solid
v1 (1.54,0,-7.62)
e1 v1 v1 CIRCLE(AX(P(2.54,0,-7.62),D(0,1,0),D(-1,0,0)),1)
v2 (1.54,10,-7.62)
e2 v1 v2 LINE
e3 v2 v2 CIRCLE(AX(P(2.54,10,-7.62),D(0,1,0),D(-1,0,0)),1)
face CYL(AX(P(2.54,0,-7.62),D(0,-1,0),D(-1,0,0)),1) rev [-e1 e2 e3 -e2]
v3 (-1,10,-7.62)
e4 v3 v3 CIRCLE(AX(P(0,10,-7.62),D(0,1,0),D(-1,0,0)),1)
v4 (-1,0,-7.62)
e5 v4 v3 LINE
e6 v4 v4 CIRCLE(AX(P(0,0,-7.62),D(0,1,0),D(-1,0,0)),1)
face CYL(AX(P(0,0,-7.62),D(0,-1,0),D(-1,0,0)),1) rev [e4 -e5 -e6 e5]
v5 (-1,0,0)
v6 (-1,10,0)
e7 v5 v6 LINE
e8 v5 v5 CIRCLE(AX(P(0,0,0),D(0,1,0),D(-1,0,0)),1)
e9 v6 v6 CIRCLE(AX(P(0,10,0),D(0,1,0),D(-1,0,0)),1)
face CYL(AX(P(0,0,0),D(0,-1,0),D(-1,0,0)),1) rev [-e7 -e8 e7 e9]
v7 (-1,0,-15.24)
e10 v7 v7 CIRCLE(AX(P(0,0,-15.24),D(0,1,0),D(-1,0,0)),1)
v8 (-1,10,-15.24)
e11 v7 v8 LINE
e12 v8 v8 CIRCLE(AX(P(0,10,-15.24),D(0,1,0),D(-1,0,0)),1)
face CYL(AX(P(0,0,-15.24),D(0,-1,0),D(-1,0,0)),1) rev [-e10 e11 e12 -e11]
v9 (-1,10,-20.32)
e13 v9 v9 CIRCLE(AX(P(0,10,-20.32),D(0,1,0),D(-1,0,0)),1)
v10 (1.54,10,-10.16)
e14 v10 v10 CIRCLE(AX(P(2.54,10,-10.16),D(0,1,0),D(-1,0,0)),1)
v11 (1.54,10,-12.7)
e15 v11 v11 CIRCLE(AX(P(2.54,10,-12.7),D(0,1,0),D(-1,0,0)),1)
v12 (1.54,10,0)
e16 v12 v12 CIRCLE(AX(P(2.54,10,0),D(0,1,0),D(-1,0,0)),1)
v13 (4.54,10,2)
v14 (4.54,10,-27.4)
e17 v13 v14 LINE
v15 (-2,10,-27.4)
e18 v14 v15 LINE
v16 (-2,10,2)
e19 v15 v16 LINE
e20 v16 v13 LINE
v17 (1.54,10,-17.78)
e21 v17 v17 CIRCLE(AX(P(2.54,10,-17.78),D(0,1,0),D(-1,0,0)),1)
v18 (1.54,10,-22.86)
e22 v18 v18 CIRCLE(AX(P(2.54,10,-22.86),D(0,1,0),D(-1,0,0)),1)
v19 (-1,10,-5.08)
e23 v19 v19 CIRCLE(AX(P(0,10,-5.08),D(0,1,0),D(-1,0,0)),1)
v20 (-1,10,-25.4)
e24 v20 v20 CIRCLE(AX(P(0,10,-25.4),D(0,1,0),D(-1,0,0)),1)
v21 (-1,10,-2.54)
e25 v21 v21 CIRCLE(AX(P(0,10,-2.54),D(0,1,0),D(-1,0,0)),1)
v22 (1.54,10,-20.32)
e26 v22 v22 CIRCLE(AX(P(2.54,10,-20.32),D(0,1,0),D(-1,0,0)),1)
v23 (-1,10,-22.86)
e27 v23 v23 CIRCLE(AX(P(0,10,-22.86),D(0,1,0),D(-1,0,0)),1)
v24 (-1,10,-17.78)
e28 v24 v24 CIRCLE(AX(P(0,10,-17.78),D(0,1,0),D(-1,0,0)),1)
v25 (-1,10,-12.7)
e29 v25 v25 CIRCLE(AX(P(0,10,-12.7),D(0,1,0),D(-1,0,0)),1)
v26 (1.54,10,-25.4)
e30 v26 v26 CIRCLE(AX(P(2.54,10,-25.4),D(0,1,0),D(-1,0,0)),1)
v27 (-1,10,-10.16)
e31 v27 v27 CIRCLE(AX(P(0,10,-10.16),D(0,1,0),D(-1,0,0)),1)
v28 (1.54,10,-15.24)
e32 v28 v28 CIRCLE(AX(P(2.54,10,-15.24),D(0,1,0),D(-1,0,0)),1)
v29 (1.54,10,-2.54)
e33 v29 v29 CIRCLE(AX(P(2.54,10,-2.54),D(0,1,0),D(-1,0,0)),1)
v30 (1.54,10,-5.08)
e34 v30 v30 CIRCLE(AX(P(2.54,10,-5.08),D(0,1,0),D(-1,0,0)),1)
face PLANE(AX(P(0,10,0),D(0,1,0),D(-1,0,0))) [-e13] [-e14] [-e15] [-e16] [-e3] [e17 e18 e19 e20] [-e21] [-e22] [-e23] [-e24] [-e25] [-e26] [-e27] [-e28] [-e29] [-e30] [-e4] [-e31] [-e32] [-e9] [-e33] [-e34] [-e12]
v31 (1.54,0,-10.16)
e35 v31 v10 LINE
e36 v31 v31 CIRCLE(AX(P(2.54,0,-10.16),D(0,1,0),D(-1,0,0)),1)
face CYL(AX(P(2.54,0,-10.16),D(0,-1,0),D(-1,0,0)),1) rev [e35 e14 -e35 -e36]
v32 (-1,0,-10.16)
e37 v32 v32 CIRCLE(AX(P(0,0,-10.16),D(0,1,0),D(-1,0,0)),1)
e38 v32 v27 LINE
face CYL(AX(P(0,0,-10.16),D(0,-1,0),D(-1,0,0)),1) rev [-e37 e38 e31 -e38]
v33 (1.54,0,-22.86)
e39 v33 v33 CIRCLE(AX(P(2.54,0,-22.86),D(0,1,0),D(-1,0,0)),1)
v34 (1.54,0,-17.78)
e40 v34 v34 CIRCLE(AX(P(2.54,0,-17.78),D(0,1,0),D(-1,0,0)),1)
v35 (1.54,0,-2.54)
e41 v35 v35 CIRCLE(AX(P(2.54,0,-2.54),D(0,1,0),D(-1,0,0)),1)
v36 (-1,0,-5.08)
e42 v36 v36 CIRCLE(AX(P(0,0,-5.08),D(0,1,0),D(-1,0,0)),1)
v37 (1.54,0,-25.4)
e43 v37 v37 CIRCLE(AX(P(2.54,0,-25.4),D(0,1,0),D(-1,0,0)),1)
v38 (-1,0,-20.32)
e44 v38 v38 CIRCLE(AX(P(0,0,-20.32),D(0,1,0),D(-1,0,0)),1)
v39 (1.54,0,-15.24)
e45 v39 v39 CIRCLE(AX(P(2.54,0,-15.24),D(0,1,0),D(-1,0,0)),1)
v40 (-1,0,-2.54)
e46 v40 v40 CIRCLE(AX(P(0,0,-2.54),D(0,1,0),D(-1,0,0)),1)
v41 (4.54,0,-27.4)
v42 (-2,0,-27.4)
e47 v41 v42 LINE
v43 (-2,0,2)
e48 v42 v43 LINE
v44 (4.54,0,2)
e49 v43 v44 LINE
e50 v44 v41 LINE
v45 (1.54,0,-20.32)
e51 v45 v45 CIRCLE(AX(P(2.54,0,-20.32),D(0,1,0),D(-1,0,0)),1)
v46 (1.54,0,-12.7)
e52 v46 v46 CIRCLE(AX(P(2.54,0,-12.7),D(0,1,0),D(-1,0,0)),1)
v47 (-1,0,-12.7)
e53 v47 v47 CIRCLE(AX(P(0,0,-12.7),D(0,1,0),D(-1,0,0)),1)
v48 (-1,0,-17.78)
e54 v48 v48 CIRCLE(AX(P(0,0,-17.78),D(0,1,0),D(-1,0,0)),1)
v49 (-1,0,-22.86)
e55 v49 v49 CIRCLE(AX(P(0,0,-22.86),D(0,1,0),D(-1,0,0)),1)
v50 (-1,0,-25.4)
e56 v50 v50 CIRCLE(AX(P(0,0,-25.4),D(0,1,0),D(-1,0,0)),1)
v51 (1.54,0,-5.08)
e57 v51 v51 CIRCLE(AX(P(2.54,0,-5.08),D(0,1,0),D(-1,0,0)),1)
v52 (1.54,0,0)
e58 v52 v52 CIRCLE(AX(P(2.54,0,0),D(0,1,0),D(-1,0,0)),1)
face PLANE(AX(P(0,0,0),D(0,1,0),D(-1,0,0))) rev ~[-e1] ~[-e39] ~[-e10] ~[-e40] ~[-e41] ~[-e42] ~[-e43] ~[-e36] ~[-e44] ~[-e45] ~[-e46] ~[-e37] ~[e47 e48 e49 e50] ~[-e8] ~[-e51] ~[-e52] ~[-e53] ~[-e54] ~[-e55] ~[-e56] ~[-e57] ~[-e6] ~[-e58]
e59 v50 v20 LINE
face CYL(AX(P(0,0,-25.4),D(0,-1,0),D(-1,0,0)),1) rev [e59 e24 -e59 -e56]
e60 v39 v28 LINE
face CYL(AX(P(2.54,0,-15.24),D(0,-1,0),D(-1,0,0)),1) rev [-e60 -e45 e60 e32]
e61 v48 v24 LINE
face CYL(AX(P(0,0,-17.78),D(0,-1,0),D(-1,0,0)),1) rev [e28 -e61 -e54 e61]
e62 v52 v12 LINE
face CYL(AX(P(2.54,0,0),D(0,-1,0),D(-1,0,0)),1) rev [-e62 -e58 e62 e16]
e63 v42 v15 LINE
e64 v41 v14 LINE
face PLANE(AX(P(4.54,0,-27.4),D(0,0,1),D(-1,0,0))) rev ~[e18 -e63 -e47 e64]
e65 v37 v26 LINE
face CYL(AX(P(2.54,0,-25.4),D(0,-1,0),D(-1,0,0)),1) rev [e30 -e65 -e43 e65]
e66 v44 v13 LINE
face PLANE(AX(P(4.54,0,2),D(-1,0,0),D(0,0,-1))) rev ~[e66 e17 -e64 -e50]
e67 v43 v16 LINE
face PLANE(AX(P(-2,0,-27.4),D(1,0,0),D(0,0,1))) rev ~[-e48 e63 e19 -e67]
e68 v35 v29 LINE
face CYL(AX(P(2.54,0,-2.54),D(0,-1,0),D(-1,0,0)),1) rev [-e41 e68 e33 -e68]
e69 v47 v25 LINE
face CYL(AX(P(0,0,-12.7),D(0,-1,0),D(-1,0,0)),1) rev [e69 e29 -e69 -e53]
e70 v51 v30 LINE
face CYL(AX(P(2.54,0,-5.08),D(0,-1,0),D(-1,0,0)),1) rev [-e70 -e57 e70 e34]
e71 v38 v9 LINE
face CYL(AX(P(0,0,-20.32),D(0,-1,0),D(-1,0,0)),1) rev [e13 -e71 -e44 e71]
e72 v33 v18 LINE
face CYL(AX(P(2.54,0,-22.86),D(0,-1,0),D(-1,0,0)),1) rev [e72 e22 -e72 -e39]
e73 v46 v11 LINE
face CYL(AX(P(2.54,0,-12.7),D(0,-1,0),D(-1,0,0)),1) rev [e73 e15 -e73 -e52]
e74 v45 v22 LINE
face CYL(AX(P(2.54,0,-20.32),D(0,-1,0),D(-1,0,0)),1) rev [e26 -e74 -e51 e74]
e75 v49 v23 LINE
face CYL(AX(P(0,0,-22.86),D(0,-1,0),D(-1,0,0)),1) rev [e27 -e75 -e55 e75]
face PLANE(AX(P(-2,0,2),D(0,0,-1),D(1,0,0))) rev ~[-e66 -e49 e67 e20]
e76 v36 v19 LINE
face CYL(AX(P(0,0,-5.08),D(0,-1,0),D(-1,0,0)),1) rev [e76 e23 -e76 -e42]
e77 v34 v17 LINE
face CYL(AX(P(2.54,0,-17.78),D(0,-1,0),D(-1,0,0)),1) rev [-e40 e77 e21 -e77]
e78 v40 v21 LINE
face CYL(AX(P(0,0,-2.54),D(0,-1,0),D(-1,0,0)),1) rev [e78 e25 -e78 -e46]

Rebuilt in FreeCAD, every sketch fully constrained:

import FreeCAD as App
import Part
import Sketcher

V = App.Vector
Q = App.Units.Quantity

doc = App.newDocument("Part")
body = doc.addObject("PartDesign::Body", "Body")

# Sketch on XZ plane
sketch1 = body.newObject("Sketcher::SketchObject", "Sketch")
sketch1.AttachmentSupport = (doc.getObject("XZ_Plane"), [""])
sketch1.MapMode = "FlatFace"
sketch1.addGeometry([
    Part.LineSegment(V(-2, -27.4, 0), V(-2, 2, 0)),  # 0
    Part.LineSegment(V(-2, 2, 0), V(4.54, 2, 0)),  # 1
    Part.LineSegment(V(4.54, 2, 0), V(4.54, -27.4, 0)),  # 2
    Part.LineSegment(V(4.54, -27.4, 0), V(-2, -27.4, 0)),  # 3
    Part.Circle(V(2.54, -25.4, 0), V(0, 0, 1), 1),  # 4
    Part.Circle(V(2.54, -22.86, 0), V(0, 0, 1), 1),  # 5
    Part.Circle(V(2.54, -20.32, 0), V(0, 0, 1), 1),  # 6
    Part.Circle(V(2.54, -17.78, 0), V(0, 0, 1), 1),  # 7
    Part.Circle(V(2.54, -15.24, 0), V(0, 0, 1), 1),  # 8
    Part.Circle(V(0, -25.4, 0), V(0, 0, 1), 1),  # 9
    Part.Circle(V(0, -22.86, 0), V(0, 0, 1), 1),  # 10
    Part.Circle(V(0, -20.32, 0), V(0, 0, 1), 1),  # 11
    Part.Circle(V(0, -17.78, 0), V(0, 0, 1), 1),  # 12
    Part.Circle(V(0, -15.24, 0), V(0, 0, 1), 1),  # 13
    Part.Circle(V(2.54, -12.7, 0), V(0, 0, 1), 1),  # 14
    Part.Circle(V(2.54, -10.16, 0), V(0, 0, 1), 1),  # 15
    Part.Circle(V(2.54, -7.62, 0), V(0, 0, 1), 1),  # 16
    Part.Circle(V(2.54, -5.08, 0), V(0, 0, 1), 1),  # 17
    Part.Circle(V(2.54, -2.54, 0), V(0, 0, 1), 1),  # 18
    Part.Circle(V(2.54, 0, 0), V(0, 0, 1), 1),  # 19
    Part.Circle(V(0, -12.7, 0), V(0, 0, 1), 1),  # 20
    Part.Circle(V(0, -10.16, 0), V(0, 0, 1), 1),  # 21
    Part.Circle(V(0, -7.62, 0), V(0, 0, 1), 1),  # 22
    Part.Circle(V(0, -5.08, 0), V(0, 0, 1), 1),  # 23
    Part.Circle(V(0, -2.54, 0), V(0, 0, 1), 1),  # 24
    Part.Circle(V(0, 0, 0), V(0, 0, 1), 1),  # 25
], False)
sketch1.addConstraint([
    Sketcher.Constraint("Coincident", 0, 2, 1, 1),
    Sketcher.Constraint("Coincident", 1, 2, 2, 1),
    Sketcher.Constraint("Coincident", 2, 2, 3, 1),
    Sketcher.Constraint("Coincident", 3, 2, 0, 1),
    Sketcher.Constraint("Vertical", 0),
    Sketcher.Constraint("Horizontal", 1),
    Sketcher.Constraint("Vertical", 2),
    Sketcher.Constraint("Horizontal", 3),
    Sketcher.Constraint("Coincident", 25, 3, -1, 1),
    Sketcher.Constraint("Equal", 4, 5),
    Sketcher.Constraint("Equal", 5, 6),
    Sketcher.Constraint("Equal", 6, 7),
    Sketcher.Constraint("Equal", 7, 8),
    Sketcher.Constraint("Equal", 8, 9),
    Sketcher.Constraint("Equal", 9, 10),
    Sketcher.Constraint("Equal", 10, 11),
    Sketcher.Constraint("Equal", 11, 12),
    Sketcher.Constraint("Equal", 12, 13),
    Sketcher.Constraint("Equal", 13, 14),
    Sketcher.Constraint("Equal", 14, 15),
    Sketcher.Constraint("Equal", 15, 16),
    Sketcher.Constraint("Equal", 16, 17),
    Sketcher.Constraint("Equal", 17, 18),
    Sketcher.Constraint("Equal", 18, 19),
    Sketcher.Constraint("Equal", 19, 20),
    Sketcher.Constraint("Equal", 20, 21),
    Sketcher.Constraint("Equal", 21, 22),
    Sketcher.Constraint("Equal", 22, 23),
    Sketcher.Constraint("Equal", 23, 24),
    Sketcher.Constraint("Equal", 24, 25),
    Sketcher.Constraint("PointOnObject", 9, 3, -2),
    Sketcher.Constraint("PointOnObject", 10, 3, -2),
    Sketcher.Constraint("PointOnObject", 11, 3, -2),
    Sketcher.Constraint("PointOnObject", 12, 3, -2),
    Sketcher.Constraint("PointOnObject", 13, 3, -2),
    Sketcher.Constraint("PointOnObject", 19, 3, -1),
    Sketcher.Constraint("PointOnObject", 20, 3, -2),
    Sketcher.Constraint("PointOnObject", 21, 3, -2),
    Sketcher.Constraint("PointOnObject", 22, 3, -2),
    Sketcher.Constraint("PointOnObject", 23, 3, -2),
    Sketcher.Constraint("PointOnObject", 24, 3, -2),
    Sketcher.Constraint("Horizontal", 4, 3, 9, 3),
    Sketcher.Constraint("Horizontal", 5, 3, 10, 3),
    Sketcher.Constraint("Horizontal", 6, 3, 11, 3),
    Sketcher.Constraint("Horizontal", 7, 3, 12, 3),
    Sketcher.Constraint("Horizontal", 8, 3, 13, 3),
    Sketcher.Constraint("Horizontal", 14, 3, 20, 3),
    Sketcher.Constraint("Horizontal", 15, 3, 21, 3),
    Sketcher.Constraint("Horizontal", 16, 3, 22, 3),
    Sketcher.Constraint("Horizontal", 17, 3, 23, 3),
    Sketcher.Constraint("Horizontal", 18, 3, 24, 3),
    Sketcher.Constraint("Vertical", 4, 3, 5, 3),
    Sketcher.Constraint("Vertical", 5, 3, 6, 3),
    Sketcher.Constraint("Vertical", 6, 3, 7, 3),
    Sketcher.Constraint("Vertical", 7, 3, 8, 3),
    Sketcher.Constraint("Vertical", 8, 3, 14, 3),
    Sketcher.Constraint("Vertical", 14, 3, 15, 3),
    Sketcher.Constraint("Vertical", 15, 3, 16, 3),
    Sketcher.Constraint("Vertical", 16, 3, 17, 3),
    Sketcher.Constraint("Vertical", 17, 3, 18, 3),
    Sketcher.Constraint("Vertical", 18, 3, 19, 3),
    Sketcher.Constraint("Diameter", 4, Q("2 mm")),
    Sketcher.Constraint("DistanceX", 0, 2, -1, 1, Q("2 mm")),
    Sketcher.Constraint("DistanceY", -1, 1, 0, 2, Q("2 mm")),
    Sketcher.Constraint("DistanceX", 19, 3, 1, 2, Q("2 mm")),
    Sketcher.Constraint("DistanceY", 2, 2, 4, 3, Q("2 mm")),
    Sketcher.Constraint("DistanceX", -1, 1, 4, 3, Q("2.54 mm")),
    Sketcher.Constraint("DistanceY", 18, 3, -1, 1, Q("2.54 mm")),
    Sketcher.Constraint("DistanceY", 4, 3, 5, 3, Q("2.54 mm")),
    Sketcher.Constraint("DistanceY", 5, 3, 6, 3, Q("2.54 mm")),
    Sketcher.Constraint("DistanceY", 6, 3, 7, 3, Q("2.54 mm")),
    Sketcher.Constraint("DistanceY", 7, 3, 8, 3, Q("2.54 mm")),
    Sketcher.Constraint("DistanceY", 8, 3, 14, 3, Q("2.54 mm")),
    Sketcher.Constraint("DistanceY", 14, 3, 15, 3, Q("2.54 mm")),
    Sketcher.Constraint("DistanceY", 15, 3, 16, 3, Q("2.54 mm")),
    Sketcher.Constraint("DistanceY", 16, 3, 17, 3, Q("2.54 mm")),
    Sketcher.Constraint("DistanceY", 17, 3, 18, 3, Q("2.54 mm")),
])
pad1 = body.newObject("PartDesign::Pad", "Pad")
pad1.Profile = sketch1
pad1.Length = 10
pad1.Reversed = True

doc.recompute()
